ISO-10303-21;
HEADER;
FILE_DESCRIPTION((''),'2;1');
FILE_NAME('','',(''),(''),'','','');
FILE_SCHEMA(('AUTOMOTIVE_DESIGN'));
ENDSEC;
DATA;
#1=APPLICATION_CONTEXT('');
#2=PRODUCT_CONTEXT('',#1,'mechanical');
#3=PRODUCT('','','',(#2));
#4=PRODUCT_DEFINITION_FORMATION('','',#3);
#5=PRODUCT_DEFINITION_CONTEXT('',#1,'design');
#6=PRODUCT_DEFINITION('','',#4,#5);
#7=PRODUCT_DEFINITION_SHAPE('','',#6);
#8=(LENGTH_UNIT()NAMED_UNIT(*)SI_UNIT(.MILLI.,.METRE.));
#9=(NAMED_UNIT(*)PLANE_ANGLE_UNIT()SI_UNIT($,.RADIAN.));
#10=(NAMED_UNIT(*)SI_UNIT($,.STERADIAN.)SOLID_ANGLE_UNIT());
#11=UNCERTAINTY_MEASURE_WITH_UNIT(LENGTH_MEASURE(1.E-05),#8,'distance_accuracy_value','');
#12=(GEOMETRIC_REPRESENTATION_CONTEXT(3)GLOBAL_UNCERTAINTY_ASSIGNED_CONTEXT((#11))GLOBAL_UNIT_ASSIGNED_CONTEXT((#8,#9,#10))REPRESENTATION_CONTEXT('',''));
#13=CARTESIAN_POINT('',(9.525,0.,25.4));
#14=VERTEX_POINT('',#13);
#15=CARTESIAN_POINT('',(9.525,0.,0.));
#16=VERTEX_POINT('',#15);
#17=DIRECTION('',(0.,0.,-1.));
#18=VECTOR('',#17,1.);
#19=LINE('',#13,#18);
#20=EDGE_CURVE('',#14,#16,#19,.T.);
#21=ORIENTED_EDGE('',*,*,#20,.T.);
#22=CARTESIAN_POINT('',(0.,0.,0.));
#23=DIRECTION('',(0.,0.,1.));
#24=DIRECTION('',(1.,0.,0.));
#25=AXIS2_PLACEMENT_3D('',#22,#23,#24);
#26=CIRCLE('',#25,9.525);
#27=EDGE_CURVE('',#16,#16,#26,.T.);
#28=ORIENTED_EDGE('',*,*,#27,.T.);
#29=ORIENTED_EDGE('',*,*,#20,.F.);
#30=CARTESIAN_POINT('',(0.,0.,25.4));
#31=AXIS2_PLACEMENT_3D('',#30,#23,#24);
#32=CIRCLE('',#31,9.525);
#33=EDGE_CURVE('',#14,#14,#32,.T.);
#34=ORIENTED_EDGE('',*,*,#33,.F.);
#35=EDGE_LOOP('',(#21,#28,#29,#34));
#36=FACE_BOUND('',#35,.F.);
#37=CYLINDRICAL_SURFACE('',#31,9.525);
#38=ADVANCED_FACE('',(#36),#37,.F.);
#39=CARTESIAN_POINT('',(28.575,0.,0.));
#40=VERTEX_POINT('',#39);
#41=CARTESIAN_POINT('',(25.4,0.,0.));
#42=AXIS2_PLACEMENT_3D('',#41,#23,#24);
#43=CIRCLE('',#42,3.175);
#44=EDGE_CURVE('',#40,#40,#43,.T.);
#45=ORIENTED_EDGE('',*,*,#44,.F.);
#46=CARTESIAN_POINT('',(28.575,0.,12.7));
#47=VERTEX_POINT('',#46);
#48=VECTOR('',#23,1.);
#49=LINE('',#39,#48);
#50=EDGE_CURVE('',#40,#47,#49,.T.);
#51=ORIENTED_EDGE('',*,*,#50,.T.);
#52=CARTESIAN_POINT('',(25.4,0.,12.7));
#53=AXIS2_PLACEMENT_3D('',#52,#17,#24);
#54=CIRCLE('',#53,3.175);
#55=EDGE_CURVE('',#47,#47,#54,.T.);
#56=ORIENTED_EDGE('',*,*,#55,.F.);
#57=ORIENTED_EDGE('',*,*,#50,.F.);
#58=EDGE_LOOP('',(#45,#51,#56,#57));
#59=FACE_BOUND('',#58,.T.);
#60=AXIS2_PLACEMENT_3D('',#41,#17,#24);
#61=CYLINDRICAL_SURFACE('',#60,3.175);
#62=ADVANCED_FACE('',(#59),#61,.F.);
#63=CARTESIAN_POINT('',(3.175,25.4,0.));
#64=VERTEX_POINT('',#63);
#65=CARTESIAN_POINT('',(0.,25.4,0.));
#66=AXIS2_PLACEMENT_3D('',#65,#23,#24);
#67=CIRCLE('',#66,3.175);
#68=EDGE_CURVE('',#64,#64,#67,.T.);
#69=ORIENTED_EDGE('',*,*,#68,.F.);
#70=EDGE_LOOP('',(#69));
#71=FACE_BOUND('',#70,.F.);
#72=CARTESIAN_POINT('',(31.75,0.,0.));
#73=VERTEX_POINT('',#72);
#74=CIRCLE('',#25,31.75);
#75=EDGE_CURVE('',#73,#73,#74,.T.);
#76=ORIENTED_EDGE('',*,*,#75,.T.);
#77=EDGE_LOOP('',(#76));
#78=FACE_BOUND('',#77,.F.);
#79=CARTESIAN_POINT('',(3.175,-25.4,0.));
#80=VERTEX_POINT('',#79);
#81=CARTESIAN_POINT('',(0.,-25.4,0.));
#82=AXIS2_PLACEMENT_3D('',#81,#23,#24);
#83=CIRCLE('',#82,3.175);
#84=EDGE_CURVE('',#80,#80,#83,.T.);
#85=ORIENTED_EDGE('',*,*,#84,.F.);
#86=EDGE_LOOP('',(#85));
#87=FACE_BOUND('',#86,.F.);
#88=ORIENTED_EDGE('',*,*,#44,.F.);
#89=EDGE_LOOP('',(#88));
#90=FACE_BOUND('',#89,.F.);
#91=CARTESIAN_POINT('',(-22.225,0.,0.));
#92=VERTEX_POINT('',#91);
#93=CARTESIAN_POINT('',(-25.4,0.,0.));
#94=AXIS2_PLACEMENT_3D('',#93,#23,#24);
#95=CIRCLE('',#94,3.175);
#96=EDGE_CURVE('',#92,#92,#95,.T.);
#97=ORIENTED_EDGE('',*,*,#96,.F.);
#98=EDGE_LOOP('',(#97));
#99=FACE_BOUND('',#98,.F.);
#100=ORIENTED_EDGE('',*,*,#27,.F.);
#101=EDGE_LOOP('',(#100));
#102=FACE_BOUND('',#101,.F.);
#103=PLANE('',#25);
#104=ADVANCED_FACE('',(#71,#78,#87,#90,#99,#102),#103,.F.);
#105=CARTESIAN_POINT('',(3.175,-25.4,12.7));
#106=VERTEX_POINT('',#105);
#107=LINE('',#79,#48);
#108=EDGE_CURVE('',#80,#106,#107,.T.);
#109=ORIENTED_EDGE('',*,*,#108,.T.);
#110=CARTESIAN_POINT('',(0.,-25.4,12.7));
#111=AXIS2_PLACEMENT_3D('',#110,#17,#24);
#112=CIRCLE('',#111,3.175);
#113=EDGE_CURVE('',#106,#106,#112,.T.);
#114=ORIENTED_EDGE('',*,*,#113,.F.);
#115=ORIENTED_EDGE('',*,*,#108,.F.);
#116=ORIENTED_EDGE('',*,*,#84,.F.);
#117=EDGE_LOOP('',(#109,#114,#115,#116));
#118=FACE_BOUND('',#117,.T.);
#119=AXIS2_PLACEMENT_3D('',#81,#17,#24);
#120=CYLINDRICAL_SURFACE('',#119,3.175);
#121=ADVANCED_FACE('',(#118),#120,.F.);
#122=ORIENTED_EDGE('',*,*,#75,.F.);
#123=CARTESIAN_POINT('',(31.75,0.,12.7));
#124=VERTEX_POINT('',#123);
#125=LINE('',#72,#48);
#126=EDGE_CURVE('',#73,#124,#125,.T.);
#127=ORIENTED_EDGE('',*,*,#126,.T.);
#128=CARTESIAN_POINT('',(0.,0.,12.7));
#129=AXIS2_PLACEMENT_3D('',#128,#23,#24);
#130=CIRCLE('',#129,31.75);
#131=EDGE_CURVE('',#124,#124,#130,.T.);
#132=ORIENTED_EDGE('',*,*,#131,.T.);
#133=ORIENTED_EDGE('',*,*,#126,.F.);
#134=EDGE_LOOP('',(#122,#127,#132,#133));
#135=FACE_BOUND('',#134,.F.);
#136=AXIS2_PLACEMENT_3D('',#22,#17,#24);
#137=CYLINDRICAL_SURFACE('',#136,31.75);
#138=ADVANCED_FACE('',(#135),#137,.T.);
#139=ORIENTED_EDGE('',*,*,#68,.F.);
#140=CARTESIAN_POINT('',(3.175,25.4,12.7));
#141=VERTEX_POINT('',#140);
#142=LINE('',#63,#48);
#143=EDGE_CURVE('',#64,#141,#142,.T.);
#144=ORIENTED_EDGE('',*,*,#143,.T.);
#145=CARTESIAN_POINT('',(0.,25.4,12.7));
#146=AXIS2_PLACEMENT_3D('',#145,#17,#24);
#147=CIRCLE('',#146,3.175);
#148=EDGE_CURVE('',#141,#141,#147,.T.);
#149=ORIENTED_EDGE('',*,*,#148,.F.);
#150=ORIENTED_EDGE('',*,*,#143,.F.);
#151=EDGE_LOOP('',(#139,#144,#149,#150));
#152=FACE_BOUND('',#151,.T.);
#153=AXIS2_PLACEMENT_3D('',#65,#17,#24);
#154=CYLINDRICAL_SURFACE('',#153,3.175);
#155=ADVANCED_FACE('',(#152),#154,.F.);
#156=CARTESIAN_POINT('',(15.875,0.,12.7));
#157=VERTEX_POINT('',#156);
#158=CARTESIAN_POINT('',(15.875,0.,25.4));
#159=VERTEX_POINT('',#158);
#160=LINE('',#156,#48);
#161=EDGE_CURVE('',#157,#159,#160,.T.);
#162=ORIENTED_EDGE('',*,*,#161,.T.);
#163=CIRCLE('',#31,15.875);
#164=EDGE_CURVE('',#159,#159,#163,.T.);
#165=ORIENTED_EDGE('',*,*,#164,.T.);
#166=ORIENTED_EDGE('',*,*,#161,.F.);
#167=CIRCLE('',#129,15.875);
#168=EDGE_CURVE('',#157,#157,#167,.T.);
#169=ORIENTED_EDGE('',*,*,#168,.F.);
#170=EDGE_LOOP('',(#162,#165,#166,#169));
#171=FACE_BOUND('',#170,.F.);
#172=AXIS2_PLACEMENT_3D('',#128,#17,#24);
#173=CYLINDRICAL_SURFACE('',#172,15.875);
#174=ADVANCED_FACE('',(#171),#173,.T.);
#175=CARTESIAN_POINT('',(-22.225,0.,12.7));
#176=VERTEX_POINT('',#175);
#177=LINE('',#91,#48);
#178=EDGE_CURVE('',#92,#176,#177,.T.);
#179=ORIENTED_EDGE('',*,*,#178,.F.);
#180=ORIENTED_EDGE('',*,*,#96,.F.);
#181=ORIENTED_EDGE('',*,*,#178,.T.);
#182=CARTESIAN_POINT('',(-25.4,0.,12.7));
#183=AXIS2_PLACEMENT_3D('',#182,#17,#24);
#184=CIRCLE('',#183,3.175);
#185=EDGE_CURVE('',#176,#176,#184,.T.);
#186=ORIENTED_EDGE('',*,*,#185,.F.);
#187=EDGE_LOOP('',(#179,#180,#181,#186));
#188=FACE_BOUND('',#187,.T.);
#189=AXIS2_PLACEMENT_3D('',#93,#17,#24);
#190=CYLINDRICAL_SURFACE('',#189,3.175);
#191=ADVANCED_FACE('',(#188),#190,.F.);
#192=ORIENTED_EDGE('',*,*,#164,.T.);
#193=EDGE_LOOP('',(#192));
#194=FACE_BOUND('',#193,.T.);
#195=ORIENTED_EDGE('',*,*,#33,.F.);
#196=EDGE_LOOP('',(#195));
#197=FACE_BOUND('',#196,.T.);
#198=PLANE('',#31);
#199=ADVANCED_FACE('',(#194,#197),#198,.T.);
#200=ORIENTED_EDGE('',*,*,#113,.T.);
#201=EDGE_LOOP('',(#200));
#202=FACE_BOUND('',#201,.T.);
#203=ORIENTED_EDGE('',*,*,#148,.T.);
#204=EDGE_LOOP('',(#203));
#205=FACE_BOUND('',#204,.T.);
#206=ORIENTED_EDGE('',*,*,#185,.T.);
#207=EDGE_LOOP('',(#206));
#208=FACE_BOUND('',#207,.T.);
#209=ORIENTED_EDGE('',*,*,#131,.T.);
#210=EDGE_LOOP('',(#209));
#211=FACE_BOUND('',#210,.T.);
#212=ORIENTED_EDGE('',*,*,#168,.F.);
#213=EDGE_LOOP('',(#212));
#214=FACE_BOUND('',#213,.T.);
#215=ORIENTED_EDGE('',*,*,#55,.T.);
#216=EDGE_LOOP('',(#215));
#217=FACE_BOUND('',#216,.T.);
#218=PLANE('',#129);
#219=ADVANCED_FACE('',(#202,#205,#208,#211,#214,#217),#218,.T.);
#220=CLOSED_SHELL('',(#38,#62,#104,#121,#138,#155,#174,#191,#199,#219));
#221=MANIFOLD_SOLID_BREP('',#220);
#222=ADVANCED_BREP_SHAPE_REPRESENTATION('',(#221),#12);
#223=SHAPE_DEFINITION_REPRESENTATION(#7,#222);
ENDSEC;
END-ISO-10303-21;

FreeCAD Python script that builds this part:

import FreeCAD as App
import Part
import Sketcher
Q = App.Units.Quantity

doc = App.newDocument("Part")
params = doc.addObject("Spreadsheet::Sheet", "Params")
for row, (alias, value) in enumerate([
    ("sketch1_diameter", "2.5 in"),
    ("pad1_length", "0.5 in"),
    ("sketch2_diameter", "1.25 in"),
    ("pad2_length", "0.5 in"),
    ("sketch3_diameter", "0.25 in"),
    ("pocket1_length", "1 in"),
    ("sketch4_diameter", "0.75 in"),
], start=1):
    params.set(f"A{row}", alias)
    params.set(f"B{row}", "=" + value)
    params.setAlias(f"B{row}", alias)

body = doc.addObject("PartDesign::Body", "Body")

sketch1 = body.newObject("Sketcher::SketchObject", "Sketch")
sketch1.AttachmentSupport = (doc.getObject("XY_Plane"), [""])
sketch1.MapMode = "FlatFace"
sketch1.addGeometry(Part.Circle(App.Vector(0, 0, 0), App.Vector(0, 0, 1), 32), False)
sketch1.addConstraint(Sketcher.Constraint("Coincident", 0, 3, -1, 1))
sketch1.addConstraint(Sketcher.Constraint("Diameter", 0, Q("2.5 in")))
sketch1.setExpression("Constraints[1]", "Params.sketch1_diameter")
pad1 = body.newObject("PartDesign::Pad", "Pad")
pad1.Profile = sketch1
pad1.setExpression("Length", "Params.pad1_length")

sketch2 = body.newObject("Sketcher::SketchObject", "Sketch001")
sketch2.AttachmentSupport = (doc.getObject("XY_Plane"), [""])
sketch2.MapMode = "FlatFace"
sketch2.AttachmentOffset = App.Placement(App.Vector(0, 0, 0.5 * 25.4), App.Rotation())
sketch2.addGeometry(Part.Circle(App.Vector(0, 0, 0), App.Vector(0, 0, 1), 16), False)
sketch2.addConstraint(Sketcher.Constraint("Coincident", 0, 3, -1, 1))
sketch2.addConstraint(Sketcher.Constraint("Diameter", 0, Q("1.25 in")))
sketch2.setExpression("Constraints[1]", "Params.sketch2_diameter")
pad2 = body.newObject("PartDesign::Pad", "Pad001")
pad2.Profile = sketch2
pad2.setExpression("Length", "Params.pad2_length")

sketch3 = body.newObject("Sketcher::SketchObject", "Sketch002")
sketch3.AttachmentSupport = (doc.getObject("XY_Plane"), [""])
sketch3.MapMode = "FlatFace"
sketch3.addGeometry(Part.Circle(App.Vector(0, 25.4, 0), App.Vector(0, 0, 1), 3.2), False)
sketch3.addGeometry(Part.Circle(App.Vector(-25.4, 0, 0), App.Vector(0, 0, 1), 3.2), False)
sketch3.addGeometry(Part.Circle(App.Vector(25.4, 0, 0), App.Vector(0, 0, 1), 3.2), False)
sketch3.addGeometry(Part.Circle(App.Vector(0, -25.4, 0), App.Vector(0, 0, 1), 3.2), False)
sketch3.addConstraint(Sketcher.Constraint("Equal", 0, 1))
sketch3.addConstraint(Sketcher.Constraint("Equal", 1, 2))
sketch3.addConstraint(Sketcher.Constraint("Equal", 2, 3))
sketch3.addConstraint(Sketcher.Constraint("Symmetric", 1, 3, 2, 3, -1, 1))
sketch3.addConstraint(Sketcher.Constraint("Symmetric", 0, 3, 3, 3, -1, 1))
sketch3.addConstraint(Sketcher.Constraint("PointOnObject", 0, 3, -2))
sketch3.addConstraint(Sketcher.Constraint("PointOnObject", 1, 3, -1))
sketch3.addConstraint(Sketcher.Constraint("Diameter", 0, Q("0.25 in")))
sketch3.addConstraint(Sketcher.Constraint("DistanceY", -1, 1, 0, 3, Q("1 in")))
sketch3.addConstraint(Sketcher.Constraint("DistanceX", 1, 3, -1, 1, Q("1 in")))
sketch3.setExpression("Constraints[7]", "Params.sketch3_diameter")
pocket1 = body.newObject("PartDesign::Pocket", "Pocket")
pocket1.Profile = sketch3
pocket1.setExpression("Length", "Params.pocket1_length")
pocket1.Reversed = True

sketch4 = body.newObject("Sketcher::SketchObject", "Sketch003")
sketch4.AttachmentSupport = (doc.getObject("XY_Plane"), [""])
sketch4.MapMode = "FlatFace"
sketch4.AttachmentOffset = App.Placement(App.Vector(0, 0, 1 * 25.4), App.Rotation())
sketch4.addGeometry(Part.Circle(App.Vector(0, 0, 0), App.Vector(0, 0, 1), 10), False)
sketch4.addConstraint(Sketcher.Constraint("Coincident", 0, 3, -1, 1))
sketch4.addConstraint(Sketcher.Constraint("Diameter", 0, Q("0.75 in")))
sketch4.setExpression("Constraints[1]", "Params.sketch4_diameter")
pocket2 = body.newObject("PartDesign::Pocket", "Pocket001")
pocket2.Profile = sketch4
pocket2.Type = "ThroughAll"

doc.recompute()
